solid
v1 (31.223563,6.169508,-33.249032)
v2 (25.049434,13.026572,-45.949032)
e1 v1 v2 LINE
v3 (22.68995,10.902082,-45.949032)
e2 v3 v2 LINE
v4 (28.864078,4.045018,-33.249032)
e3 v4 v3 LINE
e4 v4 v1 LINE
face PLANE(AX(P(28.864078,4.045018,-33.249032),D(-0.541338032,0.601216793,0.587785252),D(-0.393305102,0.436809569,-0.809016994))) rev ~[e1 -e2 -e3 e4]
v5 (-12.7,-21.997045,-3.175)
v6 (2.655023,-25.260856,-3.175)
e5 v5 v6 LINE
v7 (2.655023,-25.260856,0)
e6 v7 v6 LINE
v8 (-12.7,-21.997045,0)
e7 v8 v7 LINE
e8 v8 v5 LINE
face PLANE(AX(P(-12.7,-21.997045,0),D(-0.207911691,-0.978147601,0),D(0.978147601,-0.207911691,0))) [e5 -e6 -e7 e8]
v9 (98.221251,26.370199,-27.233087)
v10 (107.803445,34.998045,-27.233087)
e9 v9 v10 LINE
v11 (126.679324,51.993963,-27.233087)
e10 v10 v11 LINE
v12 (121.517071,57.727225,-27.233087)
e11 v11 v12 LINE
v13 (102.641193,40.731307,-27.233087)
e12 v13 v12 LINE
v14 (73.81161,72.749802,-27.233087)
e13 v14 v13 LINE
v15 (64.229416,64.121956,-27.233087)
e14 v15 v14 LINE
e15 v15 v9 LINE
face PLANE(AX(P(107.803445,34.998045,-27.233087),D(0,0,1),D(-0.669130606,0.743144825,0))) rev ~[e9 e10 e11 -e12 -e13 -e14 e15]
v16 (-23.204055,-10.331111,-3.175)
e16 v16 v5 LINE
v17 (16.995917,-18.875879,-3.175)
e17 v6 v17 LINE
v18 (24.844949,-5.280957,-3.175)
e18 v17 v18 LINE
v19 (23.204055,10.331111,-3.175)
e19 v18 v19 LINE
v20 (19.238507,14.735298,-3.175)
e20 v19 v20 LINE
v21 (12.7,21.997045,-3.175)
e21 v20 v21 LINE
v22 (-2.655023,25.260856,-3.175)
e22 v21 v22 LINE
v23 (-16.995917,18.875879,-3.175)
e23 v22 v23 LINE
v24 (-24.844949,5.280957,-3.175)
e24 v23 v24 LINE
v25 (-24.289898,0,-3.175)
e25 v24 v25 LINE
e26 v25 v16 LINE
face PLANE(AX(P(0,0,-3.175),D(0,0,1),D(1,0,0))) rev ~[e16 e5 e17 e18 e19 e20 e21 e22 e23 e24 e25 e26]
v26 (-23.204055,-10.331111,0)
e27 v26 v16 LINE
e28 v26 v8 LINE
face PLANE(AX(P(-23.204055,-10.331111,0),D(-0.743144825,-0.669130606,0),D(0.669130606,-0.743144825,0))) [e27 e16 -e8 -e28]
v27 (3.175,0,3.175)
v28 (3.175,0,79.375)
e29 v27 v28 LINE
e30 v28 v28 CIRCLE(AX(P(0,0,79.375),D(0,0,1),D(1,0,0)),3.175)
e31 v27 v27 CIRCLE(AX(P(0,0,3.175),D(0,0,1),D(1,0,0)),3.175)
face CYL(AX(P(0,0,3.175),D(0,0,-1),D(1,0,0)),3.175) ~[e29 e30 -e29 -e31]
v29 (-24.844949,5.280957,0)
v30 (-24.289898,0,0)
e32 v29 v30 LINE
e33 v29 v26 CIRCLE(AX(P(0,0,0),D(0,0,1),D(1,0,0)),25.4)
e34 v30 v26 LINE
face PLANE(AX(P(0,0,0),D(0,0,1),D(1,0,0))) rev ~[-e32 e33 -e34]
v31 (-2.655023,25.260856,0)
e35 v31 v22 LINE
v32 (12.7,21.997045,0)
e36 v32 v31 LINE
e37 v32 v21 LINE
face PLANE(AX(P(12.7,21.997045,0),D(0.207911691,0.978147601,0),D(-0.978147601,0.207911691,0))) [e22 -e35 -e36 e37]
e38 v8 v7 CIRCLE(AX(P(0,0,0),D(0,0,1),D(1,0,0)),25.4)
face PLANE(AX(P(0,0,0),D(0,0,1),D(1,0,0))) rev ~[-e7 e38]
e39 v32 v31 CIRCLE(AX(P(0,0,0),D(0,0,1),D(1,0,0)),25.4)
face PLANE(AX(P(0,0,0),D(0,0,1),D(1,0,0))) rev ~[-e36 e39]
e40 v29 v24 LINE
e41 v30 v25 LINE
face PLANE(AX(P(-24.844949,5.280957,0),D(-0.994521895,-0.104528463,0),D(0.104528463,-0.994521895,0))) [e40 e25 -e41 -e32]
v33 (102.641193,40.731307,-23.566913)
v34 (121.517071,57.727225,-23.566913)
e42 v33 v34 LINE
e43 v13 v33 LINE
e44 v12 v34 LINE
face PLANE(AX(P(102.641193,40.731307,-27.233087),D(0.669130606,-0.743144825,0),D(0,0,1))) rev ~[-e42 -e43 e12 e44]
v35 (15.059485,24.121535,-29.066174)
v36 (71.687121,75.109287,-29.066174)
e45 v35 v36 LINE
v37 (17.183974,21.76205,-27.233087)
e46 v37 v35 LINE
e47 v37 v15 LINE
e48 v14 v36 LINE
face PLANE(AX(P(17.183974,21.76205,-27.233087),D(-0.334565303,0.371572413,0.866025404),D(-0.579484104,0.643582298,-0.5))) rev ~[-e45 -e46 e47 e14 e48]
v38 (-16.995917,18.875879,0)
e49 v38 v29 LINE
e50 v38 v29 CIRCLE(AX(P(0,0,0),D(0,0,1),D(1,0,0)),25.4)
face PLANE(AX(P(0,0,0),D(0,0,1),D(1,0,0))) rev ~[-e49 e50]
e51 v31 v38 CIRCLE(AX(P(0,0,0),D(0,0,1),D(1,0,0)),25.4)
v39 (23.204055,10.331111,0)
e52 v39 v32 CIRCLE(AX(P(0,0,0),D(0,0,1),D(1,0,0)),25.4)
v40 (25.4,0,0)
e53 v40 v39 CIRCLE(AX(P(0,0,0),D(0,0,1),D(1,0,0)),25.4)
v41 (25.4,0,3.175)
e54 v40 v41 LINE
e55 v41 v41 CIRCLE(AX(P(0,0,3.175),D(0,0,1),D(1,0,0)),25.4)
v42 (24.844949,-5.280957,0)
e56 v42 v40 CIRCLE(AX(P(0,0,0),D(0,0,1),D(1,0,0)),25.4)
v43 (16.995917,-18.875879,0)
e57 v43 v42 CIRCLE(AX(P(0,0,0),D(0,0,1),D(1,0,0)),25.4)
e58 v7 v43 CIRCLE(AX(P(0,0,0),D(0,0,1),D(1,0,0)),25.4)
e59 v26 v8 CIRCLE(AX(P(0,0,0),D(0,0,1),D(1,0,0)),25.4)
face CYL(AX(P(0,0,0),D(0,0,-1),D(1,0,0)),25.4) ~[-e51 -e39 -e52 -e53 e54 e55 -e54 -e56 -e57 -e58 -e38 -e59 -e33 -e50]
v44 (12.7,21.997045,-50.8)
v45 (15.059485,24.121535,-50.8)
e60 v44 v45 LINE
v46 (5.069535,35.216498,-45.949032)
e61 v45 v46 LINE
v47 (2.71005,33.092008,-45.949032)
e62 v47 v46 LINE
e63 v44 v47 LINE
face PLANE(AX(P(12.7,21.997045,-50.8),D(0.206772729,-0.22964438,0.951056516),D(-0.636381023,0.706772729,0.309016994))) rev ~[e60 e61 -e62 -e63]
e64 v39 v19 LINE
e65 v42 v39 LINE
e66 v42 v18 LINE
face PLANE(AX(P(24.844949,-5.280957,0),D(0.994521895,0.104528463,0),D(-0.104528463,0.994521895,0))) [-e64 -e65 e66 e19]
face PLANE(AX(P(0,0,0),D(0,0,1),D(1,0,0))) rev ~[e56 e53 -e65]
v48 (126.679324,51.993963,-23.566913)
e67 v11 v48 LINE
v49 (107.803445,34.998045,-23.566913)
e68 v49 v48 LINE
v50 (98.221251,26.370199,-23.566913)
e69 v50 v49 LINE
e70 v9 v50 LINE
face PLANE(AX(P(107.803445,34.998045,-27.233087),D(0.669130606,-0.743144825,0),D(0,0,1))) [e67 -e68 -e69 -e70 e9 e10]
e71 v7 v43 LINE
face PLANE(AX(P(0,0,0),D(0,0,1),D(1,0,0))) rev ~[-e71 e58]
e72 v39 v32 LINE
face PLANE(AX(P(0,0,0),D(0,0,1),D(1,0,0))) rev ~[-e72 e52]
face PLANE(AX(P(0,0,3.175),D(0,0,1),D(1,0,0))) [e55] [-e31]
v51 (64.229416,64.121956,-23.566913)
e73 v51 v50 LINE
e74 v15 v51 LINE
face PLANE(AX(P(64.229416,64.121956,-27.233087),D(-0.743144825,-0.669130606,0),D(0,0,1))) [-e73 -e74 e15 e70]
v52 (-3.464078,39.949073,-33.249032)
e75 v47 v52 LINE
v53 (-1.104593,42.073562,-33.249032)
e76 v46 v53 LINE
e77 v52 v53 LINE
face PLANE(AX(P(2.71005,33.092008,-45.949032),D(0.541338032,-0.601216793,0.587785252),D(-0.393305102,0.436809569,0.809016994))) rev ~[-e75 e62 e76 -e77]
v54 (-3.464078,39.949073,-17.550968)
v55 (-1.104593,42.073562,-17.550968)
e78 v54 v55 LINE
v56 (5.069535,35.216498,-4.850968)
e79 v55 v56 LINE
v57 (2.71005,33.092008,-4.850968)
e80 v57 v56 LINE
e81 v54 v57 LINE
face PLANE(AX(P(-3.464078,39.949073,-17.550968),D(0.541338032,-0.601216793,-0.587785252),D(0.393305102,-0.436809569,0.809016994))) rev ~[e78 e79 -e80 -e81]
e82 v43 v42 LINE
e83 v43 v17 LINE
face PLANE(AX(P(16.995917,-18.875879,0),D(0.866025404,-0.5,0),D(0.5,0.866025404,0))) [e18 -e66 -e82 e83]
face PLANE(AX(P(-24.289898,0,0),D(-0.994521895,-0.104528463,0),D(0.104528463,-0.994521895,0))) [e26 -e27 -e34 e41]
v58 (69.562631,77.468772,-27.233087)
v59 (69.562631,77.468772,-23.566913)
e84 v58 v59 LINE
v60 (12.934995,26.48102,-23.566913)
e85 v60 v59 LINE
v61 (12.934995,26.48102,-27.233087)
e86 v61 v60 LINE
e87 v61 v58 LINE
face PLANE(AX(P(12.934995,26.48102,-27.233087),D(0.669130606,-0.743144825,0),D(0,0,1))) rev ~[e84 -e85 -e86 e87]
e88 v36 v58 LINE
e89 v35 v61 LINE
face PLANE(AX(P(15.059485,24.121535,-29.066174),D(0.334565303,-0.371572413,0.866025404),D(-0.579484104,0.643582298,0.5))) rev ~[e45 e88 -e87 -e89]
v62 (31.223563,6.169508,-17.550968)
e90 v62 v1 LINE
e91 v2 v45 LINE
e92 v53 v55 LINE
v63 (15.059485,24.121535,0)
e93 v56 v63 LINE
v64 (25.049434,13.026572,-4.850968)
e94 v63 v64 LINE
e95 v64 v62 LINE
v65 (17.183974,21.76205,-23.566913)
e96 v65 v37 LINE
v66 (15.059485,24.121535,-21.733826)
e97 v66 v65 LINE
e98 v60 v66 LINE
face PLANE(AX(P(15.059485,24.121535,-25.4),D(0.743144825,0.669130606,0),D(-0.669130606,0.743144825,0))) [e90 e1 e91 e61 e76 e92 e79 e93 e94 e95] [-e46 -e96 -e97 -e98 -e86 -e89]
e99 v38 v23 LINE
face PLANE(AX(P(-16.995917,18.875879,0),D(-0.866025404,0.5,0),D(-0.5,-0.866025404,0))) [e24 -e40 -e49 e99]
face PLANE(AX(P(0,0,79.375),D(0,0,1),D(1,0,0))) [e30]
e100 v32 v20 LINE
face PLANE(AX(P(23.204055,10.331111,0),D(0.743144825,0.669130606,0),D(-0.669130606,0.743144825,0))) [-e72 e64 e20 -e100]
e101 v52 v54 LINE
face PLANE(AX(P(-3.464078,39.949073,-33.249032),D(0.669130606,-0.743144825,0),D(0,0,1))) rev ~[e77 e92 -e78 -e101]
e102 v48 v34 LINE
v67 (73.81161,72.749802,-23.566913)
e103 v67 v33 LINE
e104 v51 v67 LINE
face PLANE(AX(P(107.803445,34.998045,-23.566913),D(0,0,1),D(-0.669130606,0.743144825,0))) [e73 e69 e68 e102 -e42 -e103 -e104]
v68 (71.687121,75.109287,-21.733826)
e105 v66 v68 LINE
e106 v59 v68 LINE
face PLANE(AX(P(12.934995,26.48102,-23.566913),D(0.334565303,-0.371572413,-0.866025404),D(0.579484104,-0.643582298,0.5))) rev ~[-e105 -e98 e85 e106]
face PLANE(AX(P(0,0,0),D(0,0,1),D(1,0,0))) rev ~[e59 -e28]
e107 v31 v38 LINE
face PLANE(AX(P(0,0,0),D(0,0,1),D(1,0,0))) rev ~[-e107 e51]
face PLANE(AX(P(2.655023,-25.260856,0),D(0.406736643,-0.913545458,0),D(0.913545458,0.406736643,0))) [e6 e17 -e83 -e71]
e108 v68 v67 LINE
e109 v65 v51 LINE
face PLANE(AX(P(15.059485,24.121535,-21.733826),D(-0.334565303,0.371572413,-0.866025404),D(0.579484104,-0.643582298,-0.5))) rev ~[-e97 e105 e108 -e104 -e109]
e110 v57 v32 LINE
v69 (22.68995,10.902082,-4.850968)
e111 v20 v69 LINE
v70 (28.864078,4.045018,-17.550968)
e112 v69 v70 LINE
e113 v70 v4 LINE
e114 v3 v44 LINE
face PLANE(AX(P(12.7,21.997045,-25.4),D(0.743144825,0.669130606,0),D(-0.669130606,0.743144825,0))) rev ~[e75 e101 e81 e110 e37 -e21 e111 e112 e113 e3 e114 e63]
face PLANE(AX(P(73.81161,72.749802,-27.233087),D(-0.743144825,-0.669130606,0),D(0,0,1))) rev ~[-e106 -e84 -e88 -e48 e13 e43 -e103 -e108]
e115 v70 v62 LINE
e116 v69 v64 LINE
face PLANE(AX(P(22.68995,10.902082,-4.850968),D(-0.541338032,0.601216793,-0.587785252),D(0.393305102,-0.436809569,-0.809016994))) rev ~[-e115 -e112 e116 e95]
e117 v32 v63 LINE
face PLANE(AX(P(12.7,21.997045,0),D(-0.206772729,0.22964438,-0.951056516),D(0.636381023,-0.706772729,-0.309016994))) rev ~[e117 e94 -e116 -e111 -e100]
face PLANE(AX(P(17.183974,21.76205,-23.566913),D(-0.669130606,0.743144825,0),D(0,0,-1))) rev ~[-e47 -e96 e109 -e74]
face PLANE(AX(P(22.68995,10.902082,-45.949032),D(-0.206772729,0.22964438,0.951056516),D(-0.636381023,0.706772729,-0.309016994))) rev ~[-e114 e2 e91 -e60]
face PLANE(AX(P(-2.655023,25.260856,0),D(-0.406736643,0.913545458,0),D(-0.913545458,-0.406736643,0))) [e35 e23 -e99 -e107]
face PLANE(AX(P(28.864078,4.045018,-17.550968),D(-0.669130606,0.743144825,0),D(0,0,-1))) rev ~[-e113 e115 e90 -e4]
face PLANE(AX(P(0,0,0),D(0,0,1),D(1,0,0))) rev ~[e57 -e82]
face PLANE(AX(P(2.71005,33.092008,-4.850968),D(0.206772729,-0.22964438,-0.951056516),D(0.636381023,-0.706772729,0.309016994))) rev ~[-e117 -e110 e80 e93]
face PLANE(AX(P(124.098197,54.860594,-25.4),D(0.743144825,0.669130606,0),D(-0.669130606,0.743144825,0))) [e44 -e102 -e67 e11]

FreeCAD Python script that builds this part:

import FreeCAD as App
import Part
import Sketcher

V = App.Vector
Q = App.Units.Quantity

doc = App.newDocument("Part")
body = doc.addObject("PartDesign::Body", "Body")

sketch1 = body.newObject("Sketcher::SketchObject", "Sketch")
sketch1.AttachmentSupport = (doc.getObject("XY_Plane"), [""])
sketch1.MapMode = "FlatFace"
sketch1.addGeometry(Part.Circle(V(0, 0, 0), V(0, 0, 1), 25), False)
sketch1.addConstraint(Sketcher.Constraint("Coincident", 0, 3, -1, 1))
sketch1.addConstraint(Sketcher.Constraint("Diameter", 0, Q("2 in")))
pad1 = body.newObject("PartDesign::Pad", "Pad")
pad1.Profile = sketch1
pad1.Length = Q("0.125 in")

sketch2 = body.newObject("Sketcher::SketchObject", "Sketch001")
sketch2.AttachmentSupport = (doc.getObject("XY_Plane"), [""])
sketch2.MapMode = "FlatFace"
sketch2.AttachmentOffset = App.Placement(V(0, 0, 0.125 * 25.4), App.Rotation())
sketch2.addGeometry(Part.Circle(V(0, 0, 0), V(0, 0, 1), 3.2), False)
sketch2.addConstraint(Sketcher.Constraint("Coincident", 0, 3, -1, 1))
sketch2.addConstraint(Sketcher.Constraint("Diameter", 0, Q("0.25 in")))
pad2 = body.newObject("PartDesign::Pad", "Pad001")
pad2.Profile = sketch2
pad2.Length = Q("3 in")

sketch3 = body.newObject("Sketcher::SketchObject", "Sketch002")
sketch3.AttachmentSupport = (doc.getObject("XY_Plane"), [""])
sketch3.MapMode = "FlatFace"
sketch3.addGeometry(Part.LineSegment(V(-25, 5, 0), V(-24, 0, 0)), False)
sketch3.addGeometry(Part.LineSegment(V(-24, 0, 0), V(-23, -10, 0)), False)
sketch3.addGeometry(Part.LineSegment(V(-23, -10, 0), V(-13, -22, 0)), False)
sketch3.addGeometry(Part.LineSegment(V(-13, -22, 0), V(3, -25, 0)), False)
sketch3.addGeometry(Part.LineSegment(V(3, -25, 0), V(17, -19, 0)), False)
sketch3.addGeometry(Part.LineSegment(V(17, -19, 0), V(25, -5, 0)), False)
sketch3.addGeometry(Part.LineSegment(V(25, -5, 0), V(23, 10, 0)), False)
sketch3.addGeometry(Part.LineSegment(V(23, 10, 0), V(13, 22, 0)), False)
sketch3.addGeometry(Part.LineSegment(V(13, 22, 0), V(-3, 25, 0)), False)
sketch3.addGeometry(Part.LineSegment(V(-3, 25, 0), V(-17, 19, 0)), False)
sketch3.addGeometry(Part.LineSegment(V(-17, 19, 0), V(-25, 5, 0)), False)
sketch3.addConstraint(Sketcher.Constraint("Coincident", 0, 2, 1, 1))
sketch3.addConstraint(Sketcher.Constraint("Coincident", 1, 2, 2, 1))
sketch3.addConstraint(Sketcher.Constraint("Coincident", 2, 2, 3, 1))
sketch3.addConstraint(Sketcher.Constraint("Coincident", 3, 2, 4, 1))
sketch3.addConstraint(Sketcher.Constraint("Coincident", 4, 2, 5, 1))
sketch3.addConstraint(Sketcher.Constraint("Coincident", 5, 2, 6, 1))
sketch3.addConstraint(Sketcher.Constraint("Coincident", 6, 2, 7, 1))
sketch3.addConstraint(Sketcher.Constraint("Coincident", 7, 2, 8, 1))
sketch3.addConstraint(Sketcher.Constraint("Coincident", 8, 2, 9, 1))
sketch3.addConstraint(Sketcher.Constraint("Coincident", 9, 2, 10, 1))
sketch3.addConstraint(Sketcher.Constraint("Coincident", 10, 2, 0, 1))
sketch3.addConstraint(Sketcher.Constraint("Symmetric", 1, 2, 6, 2, -1, 1))
sketch3.addConstraint(Sketcher.Constraint("Symmetric", 2, 2, 7, 2, -1, 1))
sketch3.addConstraint(Sketcher.Constraint("Symmetric", 3, 2, 8, 2, -1, 1))
sketch3.addConstraint(Sketcher.Constraint("Symmetric", 4, 2, 9, 2, -1, 1))
sketch3.addConstraint(Sketcher.Constraint("Symmetric", 5, 2, 10, 2, -1, 1))
sketch3.addConstraint(Sketcher.Constraint("PointOnObject", 0, 2, -1))
sketch3.addConstraint(Sketcher.Constraint("Parallel", 0, 1))
sketch3.addConstraint(Sketcher.Constraint("Equal", 2, 3))
sketch3.addConstraint(Sketcher.Constraint("Equal", 3, 4))
sketch3.addConstraint(Sketcher.Constraint("Equal", 4, 5))
sketch3.addConstraint(Sketcher.Constraint("Equal", 5, 6))
sketch3.addConstraint(Sketcher.Constraint("Angle", 0, Q("-84 deg")))
sketch3.addConstraint(Sketcher.Constraint("Angle", 2, Q("-48 deg")))
sketch3.addConstraint(Sketcher.Constraint("Angle", 3, Q("-12 deg")))
sketch3.addConstraint(Sketcher.Constraint("Angle", 4, Q("24 deg")))
sketch3.addConstraint(Sketcher.Constraint("Angle", 5, Q("60 deg")))
sketch3.addConstraint(Sketcher.Constraint("DistanceX", 2, 2, -1, 1, Q("0.5 in")))
pad3 = body.newObject("PartDesign::Pad", "Pad002")
pad3.Profile = sketch3
pad3.Length = Q("0.125 in")
pad3.Reversed = True

sketch4 = body.newObject("Sketcher::SketchObject", "Sketch003")
sketch4.Placement = App.Placement(V(17.952027, 16.164078, 0), App.Rotation(V(-0.669130606, 0.743144825, 0), V(0, 0, 0.999999999), V(0.743144825, 0.669130606, 0), "ZXY"))
sketch4.addGeometry(Part.LineSegment(V(23, -5, 0), V(8, 0, 0)), False)
sketch4.addGeometry(Part.LineSegment(V(8, 0, 0), V(-7, -5, 0)), False)
sketch4.addGeometry(Part.LineSegment(V(-7, -5, 0), V(-16, -18, 0)), False)
sketch4.addGeometry(Part.LineSegment(V(-16, -18, 0), V(-16, -33, 0)), False)
sketch4.addGeometry(Part.LineSegment(V(-16, -33, 0), V(-7, -46, 0)), False)
sketch4.addGeometry(Part.LineSegment(V(-7, -46, 0), V(8, -51, 0)), False)
sketch4.addGeometry(Part.LineSegment(V(8, -51, 0), V(23, -46, 0)), False)
sketch4.addGeometry(Part.LineSegment(V(23, -46, 0), V(32, -33, 0)), False)
sketch4.addGeometry(Part.LineSegment(V(32, -33, 0), V(32, -18, 0)), False)
sketch4.addGeometry(Part.LineSegment(V(32, -18, 0), V(23, -5, 0)), False)
sketch4.addConstraint(Sketcher.Constraint("Coincident", 0, 2, 1, 1))
sketch4.addConstraint(Sketcher.Constraint("Coincident", 1, 2, 2, 1))
sketch4.addConstraint(Sketcher.Constraint("Coincident", 2, 2, 3, 1))
sketch4.addConstraint(Sketcher.Constraint("Coincident", 3, 2, 4, 1))
sketch4.addConstraint(Sketcher.Constraint("Coincident", 4, 2, 5, 1))
sketch4.addConstraint(Sketcher.Constraint("Coincident", 5, 2, 6, 1))
sketch4.addConstraint(Sketcher.Constraint("Coincident", 6, 2, 7, 1))
sketch4.addConstraint(Sketcher.Constraint("Coincident", 7, 2, 8, 1))
sketch4.addConstraint(Sketcher.Constraint("Coincident", 8, 2, 9, 1))
sketch4.addConstraint(Sketcher.Constraint("Coincident", 9, 2, 0, 1))
sketch4.addConstraint(Sketcher.Constraint("Vertical", 3))
sketch4.addConstraint(Sketcher.Constraint("Vertical", 8))
sketch4.addConstraint(Sketcher.Constraint("PointOnObject", 0, 2, -1))
sketch4.addConstraint(Sketcher.Constraint("Parallel", 0, 5))
sketch4.addConstraint(Sketcher.Constraint("Parallel", 1, 6))
sketch4.addConstraint(Sketcher.Constraint("Parallel", 2, 7))
sketch4.addConstraint(Sketcher.Constraint("Parallel", 4, 9))
sketch4.addConstraint(Sketcher.Constraint("Horizontal", 4, 2, 6, 2))
sketch4.addConstraint(Sketcher.Constraint("Horizontal", 3, 2, 7, 2))
sketch4.addConstraint(Sketcher.Constraint("Horizontal", 2, 2, 8, 2))
sketch4.addConstraint(Sketcher.Constraint("Horizontal", 1, 2, 9, 2))
sketch4.addConstraint(Sketcher.Constraint("Vertical", 1, 2, 4, 2))
sketch4.addConstraint(Sketcher.Constraint("Vertical", 0, 2, 5, 2))
sketch4.addConstraint(Sketcher.Constraint("Vertical", 6, 2, 9, 2))
sketch4.addConstraint(Sketcher.Constraint("Equal", 1, 2))
sketch4.addConstraint(Sketcher.Constraint("DistanceY", 5, 2, -1, 1, Q("2 in")))
sketch4.addConstraint(Sketcher.Constraint("Angle", 0, Q("162 deg")))
sketch4.addConstraint(Sketcher.Constraint("Angle", 2, Q("-126 deg")))
sketch4.addConstraint(Sketcher.Constraint("DistanceY", 2, 2, 1, 2, Q("0.5 in")))
sketch4.addConstraint(Sketcher.Constraint("DistanceX", -1, 1, 0, 2, 7.849032))
pad4 = body.newObject("PartDesign::Pad", "Pad003")
pad4.Profile = sketch4
pad4.Length = Q("0.125 in")

sketch5 = body.newObject("Sketcher::SketchObject", "Sketch004")
sketch5.Placement = App.Placement(V(20.311512, 18.288568, 0), App.Rotation(V(-0.669130606, 0.743144825, 0), V(0, 0, 0.999999999), V(0.743144825, 0.669130606, 0), "ZXY"))
sketch5.addGeometry(Part.LineSegment(V(11, -27.2, 0), V(11, -23.6, 0)), False)
sketch5.addGeometry(Part.LineSegment(V(11, -23.6, 0), V(7.8, -21.7, 0)), False)
sketch5.addGeometry(Part.LineSegment(V(7.8, -21.7, 0), V(4.7, -23.6, 0)), False)
sketch5.addGeometry(Part.LineSegment(V(4.7, -23.6, 0), V(4.7, -27.2, 0)), False)
sketch5.addGeometry(Part.LineSegment(V(4.7, -27.2, 0), V(7.8, -29.1, 0)), False)
sketch5.addGeometry(Part.LineSegment(V(7.8, -29.1, 0), V(11, -27.2, 0)), False)
sketch5.addConstraint(Sketcher.Constraint("Coincident", 0, 2, 1, 1))
sketch5.addConstraint(Sketcher.Constraint("Coincident", 1, 2, 2, 1))
sketch5.addConstraint(Sketcher.Constraint("Coincident", 2, 2, 3, 1))
sketch5.addConstraint(Sketcher.Constraint("Coincident", 3, 2, 4, 1))
sketch5.addConstraint(Sketcher.Constraint("Coincident", 4, 2, 5, 1))
sketch5.addConstraint(Sketcher.Constraint("Coincident", 5, 2, 0, 1))
sketch5.addConstraint(Sketcher.Constraint("Vertical", 0))
sketch5.addConstraint(Sketcher.Constraint("Vertical", 3))
sketch5.addConstraint(Sketcher.Constraint("Parallel", 1, 4))
sketch5.addConstraint(Sketcher.Constraint("Parallel", 2, 5))
sketch5.addConstraint(Sketcher.Constraint("Horizontal", 0, 2, 2, 2))
sketch5.addConstraint(Sketcher.Constraint("Horizontal", 3, 2, 5, 2))
sketch5.addConstraint(Sketcher.Constraint("Vertical", 1, 2, 4, 2))
sketch5.addConstraint(Sketcher.Constraint("Angle", 1, Q("150 deg")))
sketch5.addConstraint(Sketcher.Constraint("DistanceX", 2, 2, 0, 2, Q("0.25 in")))
sketch5.addConstraint(Sketcher.Constraint("DistanceY", 0, 1, 0, 2, 3.666174))
sketch5.addConstraint(Sketcher.Constraint("DistanceX", -1, 1, 0, 2, 11.024032))
sketch5.addConstraint(Sketcher.Constraint("DistanceY", 0, 2, -1, 1, 23.566913))
pad5 = body.newObject("PartDesign::Pad", "Pad004")
pad5.Profile = sketch5
pad5.Length = Q("3 in")

sketch6 = body.newObject("Sketcher::SketchObject", "Sketch005")
sketch6.Placement = App.Placement(V(-3.127538, 3.473482, 0), App.Rotation(V(0.743144825, 0.669130606, 0), V(0, 0, 0.999999999), V(0.669130606, -0.743144825, 0), "ZXY"))
sketch6.addGeometry(Part.LineSegment(V(90.6, -23.6, 0), V(90.6, -27.2, 0)), False)
sketch6.addGeometry(Part.LineSegment(V(90.6, -27.2, 0), V(103.5, -27.2, 0)), False)
sketch6.addGeometry(Part.LineSegment(V(103.5, -27.2, 0), V(103.5, -23.6, 0)), False)
sketch6.addGeometry(Part.LineSegment(V(103.5, -23.6, 0), V(90.6, -23.6, 0)), False)
sketch6.addConstraint(Sketcher.Constraint("Coincident", 0, 2, 1, 1))
sketch6.addConstraint(Sketcher.Constraint("Coincident", 1, 2, 2, 1))
sketch6.addConstraint(Sketcher.Constraint("Coincident", 2, 2, 3, 1))
sketch6.addConstraint(Sketcher.Constraint("Coincident", 3, 2, 0, 1))
sketch6.addConstraint(Sketcher.Constraint("Vertical", 0))
sketch6.addConstraint(Sketcher.Constraint("Horizontal", 1))
sketch6.addConstraint(Sketcher.Constraint("Vertical", 2))
sketch6.addConstraint(Sketcher.Constraint("Horizontal", 3))
sketch6.addConstraint(Sketcher.Constraint("DistanceX", 1, 1, 1, 2, 12.894114))
sketch6.addConstraint(Sketcher.Constraint("DistanceY", 0, 2, 0, 1, 3.666174))
sketch6.addConstraint(Sketcher.Constraint("DistanceX", -1, 1, 0, 2, 90.637721))
sketch6.addConstraint(Sketcher.Constraint("DistanceY", 0, 2, -1, 1, 27.233087))
pad6 = body.newObject("PartDesign::Pad", "Pad005")
pad6.Profile = sketch6
pad6.Length = Q("2 in")

sketch7 = body.newObject("Sketcher::SketchObject", "Sketch006")
sketch7.Placement = App.Placement(V(76.939148, 69.27632, 0), App.Rotation(V(-0.669130606, 0.743144825, 0), V(0, 0, 0.999999999), V(0.743144825, 0.669130606, 0), "ZXY"))
sketch7.addGeometry(Part.LineSegment(V(-46.1, -23.6, 0), V(-46.1, -27.2, 0)), False)
sketch7.addGeometry(Part.LineSegment(V(-46.1, -27.2, 0), V(-38.4, -27.2, 0)), False)
sketch7.addGeometry(Part.LineSegment(V(-38.4, -27.2, 0), V(-38.4, -23.6, 0)), False)
sketch7.addGeometry(Part.LineSegment(V(-38.4, -23.6, 0), V(-46.1, -23.6, 0)), False)
sketch7.addConstraint(Sketcher.Constraint("Coincident", 0, 2, 1, 1))
sketch7.addConstraint(Sketcher.Constraint("Coincident", 1, 2, 2, 1))
sketch7.addConstraint(Sketcher.Constraint("Coincident", 2, 2, 3, 1))
sketch7.addConstraint(Sketcher.Constraint("Coincident", 3, 2, 0, 1))
sketch7.addConstraint(Sketcher.Constraint("Vertical", 0))
sketch7.addConstraint(Sketcher.Constraint("Horizontal", 1))
sketch7.addConstraint(Sketcher.Constraint("Vertical", 2))
sketch7.addConstraint(Sketcher.Constraint("Horizontal", 3))
sketch7.addConstraint(Sketcher.Constraint("DistanceX", 1, 1, 1, 2, 7.714865))
sketch7.addConstraint(Sketcher.Constraint("DistanceY", 0, 2, 0, 1, 3.666174))
sketch7.addConstraint(Sketcher.Constraint("DistanceX", 0, 2, -1, 1, 46.125968))
sketch7.addConstraint(Sketcher.Constraint("DistanceY", 0, 2, -1, 1, 27.233087))
pad7 = body.newObject("PartDesign::Pad", "Pad006")
pad7.Profile = sketch7
pad7.Length = Q("1 in")

doc.recompute()
